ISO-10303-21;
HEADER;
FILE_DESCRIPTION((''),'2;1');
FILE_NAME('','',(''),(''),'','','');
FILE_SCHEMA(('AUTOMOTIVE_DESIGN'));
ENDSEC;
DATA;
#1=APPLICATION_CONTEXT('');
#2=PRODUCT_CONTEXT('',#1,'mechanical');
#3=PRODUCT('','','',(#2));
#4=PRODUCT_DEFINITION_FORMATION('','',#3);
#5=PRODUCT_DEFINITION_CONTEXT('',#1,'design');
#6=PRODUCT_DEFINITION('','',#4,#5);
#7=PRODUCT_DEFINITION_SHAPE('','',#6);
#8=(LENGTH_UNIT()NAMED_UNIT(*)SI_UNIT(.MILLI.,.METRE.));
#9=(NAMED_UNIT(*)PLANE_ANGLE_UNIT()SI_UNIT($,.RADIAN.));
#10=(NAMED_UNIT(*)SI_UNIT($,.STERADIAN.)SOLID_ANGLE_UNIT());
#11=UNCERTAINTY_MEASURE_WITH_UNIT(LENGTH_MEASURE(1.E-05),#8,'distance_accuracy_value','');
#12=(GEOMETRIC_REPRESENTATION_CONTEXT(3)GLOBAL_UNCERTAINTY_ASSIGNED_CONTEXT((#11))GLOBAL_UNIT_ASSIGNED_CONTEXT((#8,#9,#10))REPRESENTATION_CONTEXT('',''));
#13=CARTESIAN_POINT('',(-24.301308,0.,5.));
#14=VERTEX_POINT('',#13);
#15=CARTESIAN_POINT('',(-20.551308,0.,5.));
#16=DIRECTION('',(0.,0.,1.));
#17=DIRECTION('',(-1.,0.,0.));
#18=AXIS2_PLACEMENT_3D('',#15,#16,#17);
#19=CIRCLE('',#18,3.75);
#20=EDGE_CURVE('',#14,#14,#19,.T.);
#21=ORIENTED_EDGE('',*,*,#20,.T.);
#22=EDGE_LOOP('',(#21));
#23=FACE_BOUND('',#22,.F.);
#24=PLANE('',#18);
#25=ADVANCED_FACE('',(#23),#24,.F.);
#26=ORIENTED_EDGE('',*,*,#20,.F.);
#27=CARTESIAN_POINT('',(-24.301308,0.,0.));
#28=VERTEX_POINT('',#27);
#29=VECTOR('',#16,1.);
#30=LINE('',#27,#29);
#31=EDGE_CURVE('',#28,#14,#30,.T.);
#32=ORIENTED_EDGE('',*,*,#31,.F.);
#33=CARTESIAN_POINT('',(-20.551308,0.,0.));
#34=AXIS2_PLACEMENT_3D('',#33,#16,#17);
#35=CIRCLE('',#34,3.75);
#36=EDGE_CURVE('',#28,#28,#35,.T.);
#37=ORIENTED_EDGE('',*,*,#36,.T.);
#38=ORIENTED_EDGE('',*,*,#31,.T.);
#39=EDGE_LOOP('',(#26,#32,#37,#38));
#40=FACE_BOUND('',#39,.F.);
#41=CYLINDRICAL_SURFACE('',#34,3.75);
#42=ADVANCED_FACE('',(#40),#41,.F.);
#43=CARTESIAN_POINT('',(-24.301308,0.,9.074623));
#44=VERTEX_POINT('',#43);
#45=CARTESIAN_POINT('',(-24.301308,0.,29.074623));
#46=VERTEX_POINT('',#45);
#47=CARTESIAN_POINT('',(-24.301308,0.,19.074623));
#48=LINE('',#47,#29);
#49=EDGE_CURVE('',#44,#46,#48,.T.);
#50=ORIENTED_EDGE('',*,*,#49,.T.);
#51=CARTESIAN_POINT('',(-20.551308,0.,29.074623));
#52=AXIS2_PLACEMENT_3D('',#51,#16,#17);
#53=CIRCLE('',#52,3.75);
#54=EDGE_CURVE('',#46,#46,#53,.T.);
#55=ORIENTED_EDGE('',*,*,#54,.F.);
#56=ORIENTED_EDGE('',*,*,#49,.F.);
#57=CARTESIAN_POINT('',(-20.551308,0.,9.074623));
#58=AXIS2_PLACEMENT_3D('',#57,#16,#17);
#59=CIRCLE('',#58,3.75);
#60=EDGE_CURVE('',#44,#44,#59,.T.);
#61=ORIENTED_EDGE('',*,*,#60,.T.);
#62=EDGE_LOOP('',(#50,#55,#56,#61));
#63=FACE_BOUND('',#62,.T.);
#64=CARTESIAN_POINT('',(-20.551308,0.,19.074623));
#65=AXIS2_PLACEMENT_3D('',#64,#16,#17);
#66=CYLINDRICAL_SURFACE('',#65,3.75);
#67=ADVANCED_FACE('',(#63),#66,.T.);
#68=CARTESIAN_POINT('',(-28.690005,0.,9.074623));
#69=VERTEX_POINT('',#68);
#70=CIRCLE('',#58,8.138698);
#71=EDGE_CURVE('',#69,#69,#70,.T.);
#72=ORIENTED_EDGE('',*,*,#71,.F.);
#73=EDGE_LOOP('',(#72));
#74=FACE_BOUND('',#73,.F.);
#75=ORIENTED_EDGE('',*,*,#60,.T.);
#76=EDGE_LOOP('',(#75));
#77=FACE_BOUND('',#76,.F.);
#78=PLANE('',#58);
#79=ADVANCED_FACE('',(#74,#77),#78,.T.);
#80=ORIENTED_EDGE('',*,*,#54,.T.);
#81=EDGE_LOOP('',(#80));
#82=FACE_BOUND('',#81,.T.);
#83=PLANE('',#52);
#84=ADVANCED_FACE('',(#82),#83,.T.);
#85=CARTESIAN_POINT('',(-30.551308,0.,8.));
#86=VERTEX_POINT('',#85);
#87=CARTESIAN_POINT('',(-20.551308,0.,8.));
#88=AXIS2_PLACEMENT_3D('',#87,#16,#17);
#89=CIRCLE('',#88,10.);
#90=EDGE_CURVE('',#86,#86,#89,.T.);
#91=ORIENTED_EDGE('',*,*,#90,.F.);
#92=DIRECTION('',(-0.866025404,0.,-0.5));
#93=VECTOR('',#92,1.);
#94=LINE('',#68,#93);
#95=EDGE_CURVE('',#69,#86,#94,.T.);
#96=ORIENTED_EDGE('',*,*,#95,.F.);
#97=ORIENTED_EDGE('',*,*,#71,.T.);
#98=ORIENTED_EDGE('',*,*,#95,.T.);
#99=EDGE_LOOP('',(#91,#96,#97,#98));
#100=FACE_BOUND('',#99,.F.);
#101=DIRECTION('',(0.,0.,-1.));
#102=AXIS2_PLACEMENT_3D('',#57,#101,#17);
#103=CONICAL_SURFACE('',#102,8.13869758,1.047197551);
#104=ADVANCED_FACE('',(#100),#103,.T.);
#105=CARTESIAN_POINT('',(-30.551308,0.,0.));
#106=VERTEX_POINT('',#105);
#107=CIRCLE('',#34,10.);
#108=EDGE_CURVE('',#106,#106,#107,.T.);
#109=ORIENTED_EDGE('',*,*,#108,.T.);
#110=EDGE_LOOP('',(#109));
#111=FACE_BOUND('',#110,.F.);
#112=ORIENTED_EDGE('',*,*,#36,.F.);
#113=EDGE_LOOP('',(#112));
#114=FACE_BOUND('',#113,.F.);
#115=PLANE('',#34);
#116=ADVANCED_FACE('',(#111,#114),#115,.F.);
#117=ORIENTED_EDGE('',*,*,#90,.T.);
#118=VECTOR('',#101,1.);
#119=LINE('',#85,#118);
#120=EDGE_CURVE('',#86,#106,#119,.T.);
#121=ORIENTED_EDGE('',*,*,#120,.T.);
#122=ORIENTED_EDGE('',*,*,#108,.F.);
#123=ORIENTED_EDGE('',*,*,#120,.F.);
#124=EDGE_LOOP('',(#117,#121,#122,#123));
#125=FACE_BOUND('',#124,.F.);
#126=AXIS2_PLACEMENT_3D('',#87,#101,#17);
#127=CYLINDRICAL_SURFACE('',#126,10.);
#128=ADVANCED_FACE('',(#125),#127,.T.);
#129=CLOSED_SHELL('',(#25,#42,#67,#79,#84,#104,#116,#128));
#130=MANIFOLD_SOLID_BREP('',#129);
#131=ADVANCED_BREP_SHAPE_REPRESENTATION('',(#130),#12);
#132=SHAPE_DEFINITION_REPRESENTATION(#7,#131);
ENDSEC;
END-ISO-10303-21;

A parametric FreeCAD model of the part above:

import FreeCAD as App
import Part
import Sketcher

V = App.Vector
Q = App.Units.Quantity


def add_polygon(sketch, points):
    """Adds a closed chain of lines whose ends are joined by coincident constraints."""
    first, n = sketch.GeometryCount, len(points)
    for a, b in zip(points, points[1:] + points[:1]):
        sketch.addGeometry(Part.LineSegment(App.Vector(*a, 0), App.Vector(*b, 0)), False)
    for i in range(n):
        sketch.addConstraint(Sketcher.Constraint("Coincident", first + i, 2, first + (i + 1) % n, 1))

doc = App.newDocument("Part")
body = doc.addObject("PartDesign::Body", "Body")

# Sketch on XZ plane
sketch1 = body.newObject("Sketcher::SketchObject", "Sketch")
sketch1.AttachmentSupport = (doc.getObject("XZ_Plane"), [""])
sketch1.MapMode = "FlatFace"
add_polygon(sketch1, [(-24.301308, 29.074623), (-24.301308, 9.074623), (-28.690005, 9.074623), (-30.551308, 8), (-30.551308, 0), (-24.301308, 0), (-24.301308, 5), (-20.551308, 5), (-20.551308, 29.074623)])  # lines 0-8
sketch1.addGeometry(Part.LineSegment(V(-20.551308, 0, 0), V(-20.551308, 29.074623, 0)), True)  # axis
sketch1.addConstraint(Sketcher.Constraint("Vertical", 0))
sketch1.addConstraint(Sketcher.Constraint("Horizontal", 1))
sketch1.addConstraint(Sketcher.Constraint("Vertical", 3))
sketch1.addConstraint(Sketcher.Constraint("Horizontal", 4))
sketch1.addConstraint(Sketcher.Constraint("Vertical", 5))
sketch1.addConstraint(Sketcher.Constraint("Horizontal", 6))
sketch1.addConstraint(Sketcher.Constraint("Vertical", 7))
sketch1.addConstraint(Sketcher.Constraint("Horizontal", 8))
sketch1.addConstraint(Sketcher.Constraint("Vertical", 9))
sketch1.addConstraint(Sketcher.Constraint("Coincident", 9, 2, 7, 2))
sketch1.addConstraint(Sketcher.Constraint("PointOnObject", 3, 2, -1))
sketch1.addConstraint(Sketcher.Constraint("PointOnObject", 9, 1, -1))
sketch1.addConstraint(Sketcher.Constraint("Vertical", 0, 2, 4, 2))
sketch1.addConstraint(Sketcher.Constraint("DistanceY", 0, 2, 0, 1, Q("20 mm")))
sketch1.addConstraint(Sketcher.Constraint("DistanceY", 3, 2, 3, 1, Q("8 mm")))
sketch1.addConstraint(Sketcher.Constraint("DistanceY", 5, 1, 5, 2, Q("5 mm")))
sketch1.addConstraint(Sketcher.Constraint("Angle", 2, Q("-150 deg")))
sketch1.addConstraint(Sketcher.Constraint("DistanceX", 2, 2, 6, 2, Q("10 mm")))
sketch1.addConstraint(Sketcher.Constraint("DistanceX", 4, 1, 4, 2, Q("6.25 mm")))
sketch1.addConstraint(Sketcher.Constraint("DistanceX", 1, 2, 1, 1, Q("4.388698 mm")))
sketch1.addConstraint(Sketcher.Constraint("DistanceX", 0, 2, -1, 1, Q("24.301308 mm")))
revolution = body.newObject("PartDesign::Revolution", "Revolution")
revolution.Profile = sketch1
revolution.ReferenceAxis = (sketch1, ["Axis0"])
revolution.Angle = 360

doc.recompute()
